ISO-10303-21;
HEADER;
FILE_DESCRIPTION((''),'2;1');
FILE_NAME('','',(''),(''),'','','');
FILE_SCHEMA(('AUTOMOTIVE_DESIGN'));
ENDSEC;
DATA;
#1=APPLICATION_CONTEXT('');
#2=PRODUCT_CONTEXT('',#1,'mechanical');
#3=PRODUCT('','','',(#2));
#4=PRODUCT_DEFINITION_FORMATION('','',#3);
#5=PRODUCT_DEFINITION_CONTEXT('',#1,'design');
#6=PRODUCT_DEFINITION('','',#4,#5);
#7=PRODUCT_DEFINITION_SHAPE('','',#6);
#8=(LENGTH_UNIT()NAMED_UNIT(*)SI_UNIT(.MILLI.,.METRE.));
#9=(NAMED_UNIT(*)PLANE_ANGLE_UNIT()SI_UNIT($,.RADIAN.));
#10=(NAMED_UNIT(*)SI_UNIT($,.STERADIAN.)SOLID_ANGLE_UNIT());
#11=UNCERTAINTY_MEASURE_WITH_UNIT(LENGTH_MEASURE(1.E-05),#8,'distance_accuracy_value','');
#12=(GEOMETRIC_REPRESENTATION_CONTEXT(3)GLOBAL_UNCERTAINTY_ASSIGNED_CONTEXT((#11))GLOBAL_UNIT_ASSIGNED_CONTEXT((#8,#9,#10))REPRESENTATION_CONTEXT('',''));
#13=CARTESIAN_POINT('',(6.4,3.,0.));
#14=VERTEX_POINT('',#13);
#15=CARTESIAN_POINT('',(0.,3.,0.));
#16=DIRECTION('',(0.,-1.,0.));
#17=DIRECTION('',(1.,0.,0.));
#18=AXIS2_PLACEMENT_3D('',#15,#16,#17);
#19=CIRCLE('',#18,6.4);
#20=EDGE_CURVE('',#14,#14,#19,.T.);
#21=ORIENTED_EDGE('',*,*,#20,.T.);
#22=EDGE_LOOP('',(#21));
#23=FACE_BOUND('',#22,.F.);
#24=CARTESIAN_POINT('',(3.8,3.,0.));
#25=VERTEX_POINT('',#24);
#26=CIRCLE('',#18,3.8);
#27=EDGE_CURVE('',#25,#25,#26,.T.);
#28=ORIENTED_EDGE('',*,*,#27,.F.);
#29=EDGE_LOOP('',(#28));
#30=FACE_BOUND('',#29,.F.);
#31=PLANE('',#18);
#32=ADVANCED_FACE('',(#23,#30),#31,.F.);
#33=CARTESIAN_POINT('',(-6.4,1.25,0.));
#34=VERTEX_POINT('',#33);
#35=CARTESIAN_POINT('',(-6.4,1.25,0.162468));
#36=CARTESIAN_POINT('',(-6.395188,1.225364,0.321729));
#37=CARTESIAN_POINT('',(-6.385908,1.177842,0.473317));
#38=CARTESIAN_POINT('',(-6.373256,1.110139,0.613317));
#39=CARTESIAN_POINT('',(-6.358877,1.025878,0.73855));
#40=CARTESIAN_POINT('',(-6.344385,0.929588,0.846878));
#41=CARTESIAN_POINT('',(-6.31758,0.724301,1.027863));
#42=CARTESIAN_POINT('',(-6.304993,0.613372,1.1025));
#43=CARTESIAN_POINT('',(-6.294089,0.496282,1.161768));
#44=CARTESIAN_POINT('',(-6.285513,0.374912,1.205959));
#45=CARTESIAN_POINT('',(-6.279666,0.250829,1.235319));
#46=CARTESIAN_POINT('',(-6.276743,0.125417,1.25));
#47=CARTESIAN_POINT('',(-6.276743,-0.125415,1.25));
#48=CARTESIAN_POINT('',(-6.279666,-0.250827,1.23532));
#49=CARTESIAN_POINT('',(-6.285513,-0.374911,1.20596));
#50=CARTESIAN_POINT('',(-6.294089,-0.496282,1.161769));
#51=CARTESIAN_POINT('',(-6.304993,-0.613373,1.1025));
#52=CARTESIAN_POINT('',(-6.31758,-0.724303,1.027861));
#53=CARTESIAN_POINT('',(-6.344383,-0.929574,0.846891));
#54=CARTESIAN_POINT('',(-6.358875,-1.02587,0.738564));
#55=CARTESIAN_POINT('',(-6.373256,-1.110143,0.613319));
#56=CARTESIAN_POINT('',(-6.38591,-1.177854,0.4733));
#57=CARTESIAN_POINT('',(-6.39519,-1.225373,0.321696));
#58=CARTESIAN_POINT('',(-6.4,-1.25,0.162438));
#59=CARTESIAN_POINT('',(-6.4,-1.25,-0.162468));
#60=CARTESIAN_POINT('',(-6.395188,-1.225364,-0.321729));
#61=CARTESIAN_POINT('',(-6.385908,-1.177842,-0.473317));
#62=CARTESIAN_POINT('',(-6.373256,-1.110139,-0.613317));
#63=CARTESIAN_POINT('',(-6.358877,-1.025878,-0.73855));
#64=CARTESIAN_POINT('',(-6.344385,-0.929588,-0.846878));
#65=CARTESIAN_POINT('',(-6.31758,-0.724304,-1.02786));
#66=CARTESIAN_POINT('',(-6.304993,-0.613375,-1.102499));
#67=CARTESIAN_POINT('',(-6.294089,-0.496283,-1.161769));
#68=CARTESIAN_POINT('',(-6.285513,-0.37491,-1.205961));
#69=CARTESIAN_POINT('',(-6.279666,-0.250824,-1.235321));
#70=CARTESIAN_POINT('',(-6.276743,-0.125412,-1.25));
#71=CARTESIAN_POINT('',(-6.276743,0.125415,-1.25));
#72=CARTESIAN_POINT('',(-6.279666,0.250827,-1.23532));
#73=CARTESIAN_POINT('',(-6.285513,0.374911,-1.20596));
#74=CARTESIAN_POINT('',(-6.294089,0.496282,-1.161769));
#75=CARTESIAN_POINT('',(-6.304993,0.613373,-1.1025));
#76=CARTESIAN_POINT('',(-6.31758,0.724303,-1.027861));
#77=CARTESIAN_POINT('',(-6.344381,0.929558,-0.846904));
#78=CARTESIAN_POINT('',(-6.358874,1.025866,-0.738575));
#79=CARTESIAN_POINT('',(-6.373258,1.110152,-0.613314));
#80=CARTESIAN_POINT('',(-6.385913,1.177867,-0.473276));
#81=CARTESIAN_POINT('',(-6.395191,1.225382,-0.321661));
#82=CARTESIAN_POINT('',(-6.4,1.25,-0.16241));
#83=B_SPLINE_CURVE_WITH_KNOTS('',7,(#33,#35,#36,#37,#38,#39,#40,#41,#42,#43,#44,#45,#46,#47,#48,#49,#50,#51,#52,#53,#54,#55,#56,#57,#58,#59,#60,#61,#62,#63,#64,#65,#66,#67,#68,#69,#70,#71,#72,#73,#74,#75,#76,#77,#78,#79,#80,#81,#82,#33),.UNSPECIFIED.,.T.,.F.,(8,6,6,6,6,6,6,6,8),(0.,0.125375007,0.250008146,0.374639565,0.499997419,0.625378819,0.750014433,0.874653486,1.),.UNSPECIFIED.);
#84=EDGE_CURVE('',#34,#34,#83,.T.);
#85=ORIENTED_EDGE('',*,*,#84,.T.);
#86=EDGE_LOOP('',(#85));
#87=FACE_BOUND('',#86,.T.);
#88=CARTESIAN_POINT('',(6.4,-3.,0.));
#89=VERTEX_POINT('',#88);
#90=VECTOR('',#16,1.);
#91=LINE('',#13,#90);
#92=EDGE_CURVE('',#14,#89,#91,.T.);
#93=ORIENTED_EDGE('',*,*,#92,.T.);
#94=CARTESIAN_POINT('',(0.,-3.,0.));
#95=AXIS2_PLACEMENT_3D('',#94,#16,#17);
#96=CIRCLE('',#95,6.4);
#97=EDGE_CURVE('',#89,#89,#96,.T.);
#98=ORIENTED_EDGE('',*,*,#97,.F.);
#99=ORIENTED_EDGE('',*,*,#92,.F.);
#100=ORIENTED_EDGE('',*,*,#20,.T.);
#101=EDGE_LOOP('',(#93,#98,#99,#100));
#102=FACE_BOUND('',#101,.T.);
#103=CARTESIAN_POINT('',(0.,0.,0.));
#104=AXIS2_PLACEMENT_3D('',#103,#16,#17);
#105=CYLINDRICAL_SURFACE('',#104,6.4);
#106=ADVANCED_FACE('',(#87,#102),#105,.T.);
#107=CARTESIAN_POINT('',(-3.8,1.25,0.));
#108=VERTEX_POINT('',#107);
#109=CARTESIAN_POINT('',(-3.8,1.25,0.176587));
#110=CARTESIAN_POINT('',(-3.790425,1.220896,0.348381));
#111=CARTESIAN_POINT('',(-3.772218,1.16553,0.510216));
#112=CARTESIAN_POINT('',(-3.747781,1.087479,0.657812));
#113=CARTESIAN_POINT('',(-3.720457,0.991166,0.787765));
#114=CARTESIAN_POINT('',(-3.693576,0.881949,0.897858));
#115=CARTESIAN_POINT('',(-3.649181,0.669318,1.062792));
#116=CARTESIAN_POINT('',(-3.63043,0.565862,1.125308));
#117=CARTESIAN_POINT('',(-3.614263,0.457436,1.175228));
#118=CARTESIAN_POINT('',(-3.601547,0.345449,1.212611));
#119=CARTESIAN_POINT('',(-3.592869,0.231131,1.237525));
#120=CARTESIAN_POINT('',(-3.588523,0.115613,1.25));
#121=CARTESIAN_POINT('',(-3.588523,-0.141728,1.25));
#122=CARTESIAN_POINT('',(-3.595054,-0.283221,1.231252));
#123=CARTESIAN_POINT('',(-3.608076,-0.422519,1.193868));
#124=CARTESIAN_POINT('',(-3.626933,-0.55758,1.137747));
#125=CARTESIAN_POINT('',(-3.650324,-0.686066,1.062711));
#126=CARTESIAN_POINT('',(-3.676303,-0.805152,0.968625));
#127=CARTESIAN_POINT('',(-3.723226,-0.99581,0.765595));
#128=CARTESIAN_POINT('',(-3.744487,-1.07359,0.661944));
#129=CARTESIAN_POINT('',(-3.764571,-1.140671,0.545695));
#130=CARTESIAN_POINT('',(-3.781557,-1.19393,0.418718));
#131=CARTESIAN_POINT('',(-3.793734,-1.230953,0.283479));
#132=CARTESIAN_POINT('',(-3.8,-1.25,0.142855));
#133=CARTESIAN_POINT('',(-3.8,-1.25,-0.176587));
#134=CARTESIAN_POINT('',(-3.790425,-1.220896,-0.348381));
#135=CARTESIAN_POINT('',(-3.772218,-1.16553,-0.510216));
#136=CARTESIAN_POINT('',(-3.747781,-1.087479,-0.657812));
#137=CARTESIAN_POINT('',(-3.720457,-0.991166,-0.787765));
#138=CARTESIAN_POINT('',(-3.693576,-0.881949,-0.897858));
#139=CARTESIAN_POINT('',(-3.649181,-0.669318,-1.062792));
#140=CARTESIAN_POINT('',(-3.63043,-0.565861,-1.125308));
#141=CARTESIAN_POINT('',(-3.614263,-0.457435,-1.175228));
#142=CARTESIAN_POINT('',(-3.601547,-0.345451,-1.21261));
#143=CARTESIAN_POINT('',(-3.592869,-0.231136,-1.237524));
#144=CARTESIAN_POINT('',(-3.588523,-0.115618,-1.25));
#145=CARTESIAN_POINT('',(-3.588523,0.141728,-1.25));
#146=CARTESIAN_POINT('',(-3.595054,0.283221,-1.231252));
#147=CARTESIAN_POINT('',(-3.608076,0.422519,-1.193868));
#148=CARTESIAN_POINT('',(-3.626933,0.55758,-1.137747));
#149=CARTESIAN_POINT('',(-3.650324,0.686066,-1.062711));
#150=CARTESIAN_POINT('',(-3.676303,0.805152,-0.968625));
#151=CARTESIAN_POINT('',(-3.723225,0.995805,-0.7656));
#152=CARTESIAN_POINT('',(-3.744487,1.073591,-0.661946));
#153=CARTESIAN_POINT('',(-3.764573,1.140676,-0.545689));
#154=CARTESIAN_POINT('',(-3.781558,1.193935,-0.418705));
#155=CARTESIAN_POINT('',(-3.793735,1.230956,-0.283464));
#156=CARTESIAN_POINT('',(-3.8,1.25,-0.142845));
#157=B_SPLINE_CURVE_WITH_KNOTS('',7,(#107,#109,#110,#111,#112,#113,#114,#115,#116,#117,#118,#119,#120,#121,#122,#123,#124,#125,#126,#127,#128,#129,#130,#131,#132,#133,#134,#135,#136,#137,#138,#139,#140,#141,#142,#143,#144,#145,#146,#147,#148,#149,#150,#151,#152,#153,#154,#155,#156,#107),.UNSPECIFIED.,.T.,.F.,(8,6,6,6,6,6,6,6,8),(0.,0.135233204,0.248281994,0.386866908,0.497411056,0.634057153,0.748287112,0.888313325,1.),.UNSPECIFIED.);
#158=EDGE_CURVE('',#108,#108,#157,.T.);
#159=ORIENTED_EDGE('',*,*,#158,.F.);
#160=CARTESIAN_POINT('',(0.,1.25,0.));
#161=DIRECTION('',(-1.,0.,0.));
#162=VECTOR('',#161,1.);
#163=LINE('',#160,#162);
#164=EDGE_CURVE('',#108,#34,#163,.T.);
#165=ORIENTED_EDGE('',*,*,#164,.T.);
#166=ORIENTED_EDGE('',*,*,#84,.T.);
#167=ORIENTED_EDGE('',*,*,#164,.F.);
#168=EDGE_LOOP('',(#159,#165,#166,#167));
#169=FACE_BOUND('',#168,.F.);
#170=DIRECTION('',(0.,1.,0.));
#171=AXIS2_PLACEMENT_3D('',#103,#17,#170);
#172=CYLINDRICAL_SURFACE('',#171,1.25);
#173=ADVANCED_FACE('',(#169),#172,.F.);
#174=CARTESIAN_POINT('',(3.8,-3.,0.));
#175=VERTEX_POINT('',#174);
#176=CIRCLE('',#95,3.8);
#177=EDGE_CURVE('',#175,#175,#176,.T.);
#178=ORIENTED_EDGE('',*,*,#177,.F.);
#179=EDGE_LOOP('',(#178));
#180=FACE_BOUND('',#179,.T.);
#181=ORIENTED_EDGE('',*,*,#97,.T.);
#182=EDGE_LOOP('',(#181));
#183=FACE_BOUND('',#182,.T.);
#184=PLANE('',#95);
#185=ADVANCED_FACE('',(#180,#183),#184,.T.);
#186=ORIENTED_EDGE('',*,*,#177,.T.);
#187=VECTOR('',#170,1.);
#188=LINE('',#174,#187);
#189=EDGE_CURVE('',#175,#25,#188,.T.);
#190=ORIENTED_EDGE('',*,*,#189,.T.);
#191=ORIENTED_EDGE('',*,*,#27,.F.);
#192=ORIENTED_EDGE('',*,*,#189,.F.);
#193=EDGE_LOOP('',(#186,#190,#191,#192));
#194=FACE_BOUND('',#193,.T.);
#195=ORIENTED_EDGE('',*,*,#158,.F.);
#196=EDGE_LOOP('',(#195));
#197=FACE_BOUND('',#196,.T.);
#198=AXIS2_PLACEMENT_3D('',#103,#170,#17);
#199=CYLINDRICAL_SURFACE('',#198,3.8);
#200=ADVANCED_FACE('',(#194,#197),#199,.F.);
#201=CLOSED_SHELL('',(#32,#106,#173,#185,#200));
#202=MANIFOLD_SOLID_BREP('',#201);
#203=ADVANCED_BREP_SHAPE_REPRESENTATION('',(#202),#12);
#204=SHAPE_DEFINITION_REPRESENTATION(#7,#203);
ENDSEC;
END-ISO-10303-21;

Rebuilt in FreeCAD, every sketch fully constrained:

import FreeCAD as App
import Part
import Sketcher

V = App.Vector
Q = App.Units.Quantity

doc = App.newDocument("Part")
params = doc.addObject("Spreadsheet::Sheet", "Params")
for row, (alias, value) in enumerate([
    ("sketch1_diameter", "12.8 mm"),
    ("sketch1_diameter2", "7.6 mm"),
    ("pad1_length", "6 mm"),
    ("sketch2_diameter", "2.5 mm"),
], start=1):
    params.set(f"A{row}", alias)
    params.set(f"B{row}", "=" + value)
    params.setAlias(f"B{row}", alias)

body = doc.addObject("PartDesign::Body", "Body")

sketch1 = body.newObject("Sketcher::SketchObject", "Sketch")
sketch1.AttachmentSupport = (doc.getObject("XZ_Plane"), [""])
sketch1.MapMode = "FlatFace"
sketch1.addGeometry(Part.Circle(V(0, 0, 0), V(0, 0, 1), 6.4), False)
sketch1.addGeometry(Part.Circle(V(0, 0, 0), V(0, 0, 1), 3.8), False)
sketch1.addConstraint(Sketcher.Constraint("Coincident", 0, 3, -1, 1))
sketch1.addConstraint(Sketcher.Constraint("Coincident", 1, 3, -1, 1))
sketch1.addConstraint(Sketcher.Constraint("Diameter", 0, Q("12.8 mm")))
sketch1.addConstraint(Sketcher.Constraint("Diameter", 1, Q("7.6 mm")))
sketch1.setExpression("Constraints[2]", "Params.sketch1_diameter")
sketch1.setExpression("Constraints[3]", "Params.sketch1_diameter2")
pad1 = body.newObject("PartDesign::Pad", "Pad")
pad1.Profile = sketch1
pad1.setExpression("Length", "Params.pad1_length")
pad1.Midplane = True

sketch2 = body.newObject("Sketcher::SketchObject", "Sketch001")
sketch2.AttachmentSupport = (doc.getObject("YZ_Plane"), [""])
sketch2.MapMode = "FlatFace"
sketch2.addGeometry(Part.Circle(V(0, 0, 0), V(0, 0, 1), 1.2), False)
sketch2.addConstraint(Sketcher.Constraint("Coincident", 0, 3, -1, 1))
sketch2.addConstraint(Sketcher.Constraint("Diameter", 0, Q("2.5 mm")))
sketch2.setExpression("Constraints[1]", "Params.sketch2_diameter")
pocket1 = body.newObject("PartDesign::Pocket", "Pocket")
pocket1.Profile = sketch2
pocket1.Type = "ThroughAll"

doc.recompute()
